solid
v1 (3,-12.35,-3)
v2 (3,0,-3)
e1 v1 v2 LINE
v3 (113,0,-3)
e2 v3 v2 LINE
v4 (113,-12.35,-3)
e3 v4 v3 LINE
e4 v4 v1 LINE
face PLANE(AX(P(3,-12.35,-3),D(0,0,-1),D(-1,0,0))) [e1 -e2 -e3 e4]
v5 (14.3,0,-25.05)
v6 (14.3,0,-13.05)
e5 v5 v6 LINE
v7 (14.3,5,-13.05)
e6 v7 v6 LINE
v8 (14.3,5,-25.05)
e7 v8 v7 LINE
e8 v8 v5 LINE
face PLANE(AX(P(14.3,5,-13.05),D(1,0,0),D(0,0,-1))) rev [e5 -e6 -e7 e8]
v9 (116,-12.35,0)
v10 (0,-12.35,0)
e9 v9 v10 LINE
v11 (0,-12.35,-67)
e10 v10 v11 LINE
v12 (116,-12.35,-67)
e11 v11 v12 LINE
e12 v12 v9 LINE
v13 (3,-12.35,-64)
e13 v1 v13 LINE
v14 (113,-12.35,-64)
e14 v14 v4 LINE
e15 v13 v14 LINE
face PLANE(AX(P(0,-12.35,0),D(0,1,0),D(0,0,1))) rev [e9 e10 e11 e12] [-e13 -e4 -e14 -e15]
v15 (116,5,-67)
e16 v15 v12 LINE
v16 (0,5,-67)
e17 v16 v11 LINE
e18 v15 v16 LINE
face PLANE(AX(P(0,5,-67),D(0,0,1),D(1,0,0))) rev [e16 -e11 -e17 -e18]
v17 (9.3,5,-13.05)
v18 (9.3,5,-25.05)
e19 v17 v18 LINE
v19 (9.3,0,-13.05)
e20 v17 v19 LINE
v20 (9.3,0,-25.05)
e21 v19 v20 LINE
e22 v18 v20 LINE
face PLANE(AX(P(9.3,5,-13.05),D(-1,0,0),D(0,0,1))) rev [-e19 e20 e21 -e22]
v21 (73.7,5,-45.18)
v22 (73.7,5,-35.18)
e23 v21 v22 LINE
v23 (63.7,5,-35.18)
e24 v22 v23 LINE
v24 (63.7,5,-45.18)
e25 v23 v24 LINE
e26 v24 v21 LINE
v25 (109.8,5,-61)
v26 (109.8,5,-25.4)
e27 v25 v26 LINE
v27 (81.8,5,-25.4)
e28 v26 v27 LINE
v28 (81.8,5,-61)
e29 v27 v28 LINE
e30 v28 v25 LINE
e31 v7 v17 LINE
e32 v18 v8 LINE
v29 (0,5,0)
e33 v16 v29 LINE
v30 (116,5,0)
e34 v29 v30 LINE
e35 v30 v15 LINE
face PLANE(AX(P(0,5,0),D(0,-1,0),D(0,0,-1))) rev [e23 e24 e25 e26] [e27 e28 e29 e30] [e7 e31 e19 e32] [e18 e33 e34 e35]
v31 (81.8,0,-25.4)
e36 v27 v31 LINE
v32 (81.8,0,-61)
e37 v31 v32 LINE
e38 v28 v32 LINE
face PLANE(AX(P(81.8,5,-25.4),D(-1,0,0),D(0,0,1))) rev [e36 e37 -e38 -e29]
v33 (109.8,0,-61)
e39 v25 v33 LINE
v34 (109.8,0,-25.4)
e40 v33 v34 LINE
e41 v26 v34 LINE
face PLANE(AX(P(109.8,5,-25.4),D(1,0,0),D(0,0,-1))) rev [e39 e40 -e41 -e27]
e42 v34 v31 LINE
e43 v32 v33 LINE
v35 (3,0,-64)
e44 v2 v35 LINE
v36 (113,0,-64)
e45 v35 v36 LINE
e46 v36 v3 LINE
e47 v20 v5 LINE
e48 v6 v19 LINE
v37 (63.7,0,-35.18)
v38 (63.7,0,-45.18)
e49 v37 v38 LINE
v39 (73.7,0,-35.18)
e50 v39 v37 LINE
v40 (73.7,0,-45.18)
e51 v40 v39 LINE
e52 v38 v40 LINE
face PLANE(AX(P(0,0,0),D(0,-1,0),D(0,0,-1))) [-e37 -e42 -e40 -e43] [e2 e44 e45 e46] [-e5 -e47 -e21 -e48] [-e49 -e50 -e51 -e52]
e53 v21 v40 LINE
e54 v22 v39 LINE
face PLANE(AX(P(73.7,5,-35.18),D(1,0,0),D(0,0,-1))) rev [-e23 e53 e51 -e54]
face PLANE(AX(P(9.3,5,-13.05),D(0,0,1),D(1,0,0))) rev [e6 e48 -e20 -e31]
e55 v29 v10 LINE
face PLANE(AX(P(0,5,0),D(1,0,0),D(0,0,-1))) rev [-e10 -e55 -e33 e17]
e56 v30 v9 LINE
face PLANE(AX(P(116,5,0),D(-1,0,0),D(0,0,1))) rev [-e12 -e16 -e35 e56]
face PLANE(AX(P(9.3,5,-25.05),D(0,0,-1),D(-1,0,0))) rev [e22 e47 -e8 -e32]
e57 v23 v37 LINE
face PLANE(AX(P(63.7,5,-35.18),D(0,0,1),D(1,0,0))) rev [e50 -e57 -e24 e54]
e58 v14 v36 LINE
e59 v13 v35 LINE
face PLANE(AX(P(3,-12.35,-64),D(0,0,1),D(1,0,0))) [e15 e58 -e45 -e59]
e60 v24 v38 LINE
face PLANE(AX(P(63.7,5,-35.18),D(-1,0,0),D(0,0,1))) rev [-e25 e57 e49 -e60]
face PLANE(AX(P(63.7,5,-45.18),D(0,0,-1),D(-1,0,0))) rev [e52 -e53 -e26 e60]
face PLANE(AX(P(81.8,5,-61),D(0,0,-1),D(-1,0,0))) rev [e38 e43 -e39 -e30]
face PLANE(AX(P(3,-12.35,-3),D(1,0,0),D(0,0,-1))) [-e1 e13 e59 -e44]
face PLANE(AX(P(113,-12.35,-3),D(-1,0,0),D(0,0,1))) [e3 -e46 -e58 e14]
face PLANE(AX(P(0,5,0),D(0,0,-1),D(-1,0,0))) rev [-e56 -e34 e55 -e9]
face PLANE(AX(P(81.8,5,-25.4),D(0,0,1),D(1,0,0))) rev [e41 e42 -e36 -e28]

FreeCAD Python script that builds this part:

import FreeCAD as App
import Part
import Sketcher
from FreeCAD import Vector
Q = App.Units.Quantity

doc = App.newDocument("Part")
params = doc.addObject("Spreadsheet::Sheet", "Params")
for row, (alias, value) in enumerate([
    ("sketch1_width", "116 mm"),
    ("sketch1_height", "67 mm"),
    ("pad1_length", "5 mm"),
    ("sketch2_width", "116 mm"),
    ("sketch2_width2", "110 mm"),
    ("sketch2_height", "67 mm"),
    ("sketch2_height2", "61 mm"),
    ("pad2_length", "12.35 mm"),
    ("sketch3_width", "28 mm"),
    ("sketch3_height", "35.6 mm"),
    ("sketch4_width", "10 mm"),
    ("sketch5_width", "5 mm"),
    ("sketch5_height", "12 mm"),
], start=1):
    params.set(f"A{row}", alias)
    params.set(f"B{row}", "=" + value)
    params.setAlias(f"B{row}", alias)

body = doc.addObject("PartDesign::Body", "Body")

sketch1 = body.newObject("Sketcher::SketchObject", "Sketch")
sketch1.AttachmentSupport = (doc.getObject("XZ_Plane"), [""])
sketch1.MapMode = "FlatFace"
sketch1.addGeometry(Part.LineSegment(Vector(0, -67, 0), Vector(0, 0, 0)), False)
sketch1.addGeometry(Part.LineSegment(Vector(0, 0, 0), Vector(116, 0, 0)), False)
sketch1.addGeometry(Part.LineSegment(Vector(116, 0, 0), Vector(116, -67, 0)), False)
sketch1.addGeometry(Part.LineSegment(Vector(116, -67, 0), Vector(0, -67, 0)), False)
sketch1.addConstraint(Sketcher.Constraint("Coincident", 0, 2, 1, 1))
sketch1.addConstraint(Sketcher.Constraint("Coincident", 1, 2, 2, 1))
sketch1.addConstraint(Sketcher.Constraint("Coincident", 2, 2, 3, 1))
sketch1.addConstraint(Sketcher.Constraint("Coincident", 3, 2, 0, 1))
sketch1.addConstraint(Sketcher.Constraint("Vertical", 0))
sketch1.addConstraint(Sketcher.Constraint("Horizontal", 1))
sketch1.addConstraint(Sketcher.Constraint("Vertical", 2))
sketch1.addConstraint(Sketcher.Constraint("Horizontal", 3))
sketch1.addConstraint(Sketcher.Constraint("Coincident", 0, 2, -1, 1))
sketch1.addConstraint(Sketcher.Constraint("DistanceX", 1, 1, 1, 2, Q("116 mm")))
sketch1.addConstraint(Sketcher.Constraint("DistanceY", 0, 1, 0, 2, Q("67 mm")))
sketch1.setExpression("Constraints[9]", "Params.sketch1_width")
sketch1.setExpression("Constraints[10]", "Params.sketch1_height")
pad1 = body.newObject("PartDesign::Pad", "Pad")
pad1.Profile = sketch1
pad1.setExpression("Length", "Params.pad1_length")
pad1.Reversed = True

sketch2 = body.newObject("Sketcher::SketchObject", "Sketch001")
sketch2.AttachmentSupport = (doc.getObject("XZ_Plane"), [""])
sketch2.MapMode = "FlatFace"
sketch2.addGeometry(Part.LineSegment(Vector(0, 0, 0), Vector(0, -67, 0)), False)
sketch2.addGeometry(Part.LineSegment(Vector(0, -67, 0), Vector(116, -67, 0)), False)
sketch2.addGeometry(Part.LineSegment(Vector(116, -67, 0), Vector(116, 0, 0)), False)
sketch2.addGeometry(Part.LineSegment(Vector(116, 0, 0), Vector(0, 0, 0)), False)
sketch2.addGeometry(Part.LineSegment(Vector(113, -64, 0), Vector(3, -64, 0)), False)
sketch2.addGeometry(Part.LineSegment(Vector(3, -64, 0), Vector(3, -3, 0)), False)
sketch2.addGeometry(Part.LineSegment(Vector(3, -3, 0), Vector(113, -3, 0)), False)
sketch2.addGeometry(Part.LineSegment(Vector(113, -3, 0), Vector(113, -64, 0)), False)
sketch2.addConstraint(Sketcher.Constraint("Coincident", 0, 2, 1, 1))
sketch2.addConstraint(Sketcher.Constraint("Coincident", 1, 2, 2, 1))
sketch2.addConstraint(Sketcher.Constraint("Coincident", 2, 2, 3, 1))
sketch2.addConstraint(Sketcher.Constraint("Coincident", 3, 2, 0, 1))
sketch2.addConstraint(Sketcher.Constraint("Coincident", 4, 2, 5, 1))
sketch2.addConstraint(Sketcher.Constraint("Coincident", 5, 2, 6, 1))
sketch2.addConstraint(Sketcher.Constraint("Coincident", 6, 2, 7, 1))
sketch2.addConstraint(Sketcher.Constraint("Coincident", 7, 2, 4, 1))
sketch2.addConstraint(Sketcher.Constraint("Vertical", 0))
sketch2.addConstraint(Sketcher.Constraint("Horizontal", 1))
sketch2.addConstraint(Sketcher.Constraint("Vertical", 2))
sketch2.addConstraint(Sketcher.Constraint("Horizontal", 3))
sketch2.addConstraint(Sketcher.Constraint("Horizontal", 4))
sketch2.addConstraint(Sketcher.Constraint("Vertical", 5))
sketch2.addConstraint(Sketcher.Constraint("Horizontal", 6))
sketch2.addConstraint(Sketcher.Constraint("Vertical", 7))
sketch2.addConstraint(Sketcher.Constraint("Coincident", 3, 2, -1, 1))
sketch2.addConstraint(Sketcher.Constraint("DistanceX", 1, 1, 1, 2, Q("116 mm")))
sketch2.addConstraint(Sketcher.Constraint("DistanceX", 4, 2, 4, 1, Q("110 mm")))
sketch2.addConstraint(Sketcher.Constraint("DistanceY", 0, 2, 0, 1, Q("67 mm")))
sketch2.addConstraint(Sketcher.Constraint("DistanceY", 5, 1, 5, 2, Q("61 mm")))
sketch2.addConstraint(Sketcher.Constraint("DistanceX", -1, 1, 4, 2, Q("3 mm")))
sketch2.addConstraint(Sketcher.Constraint("DistanceY", 4, 2, -1, 1, Q("64 mm")))
sketch2.setExpression("Constraints[17]", "Params.sketch2_width")
sketch2.setExpression("Constraints[18]", "Params.sketch2_width2")
sketch2.setExpression("Constraints[19]", "Params.sketch2_height")
sketch2.setExpression("Constraints[20]", "Params.sketch2_height2")
pad2 = body.newObject("PartDesign::Pad", "Pad001")
pad2.Profile = sketch2
pad2.setExpression("Length", "Params.pad2_length")

sketch3 = body.newObject("Sketcher::SketchObject", "Sketch002")
sketch3.AttachmentSupport = (doc.getObject("XZ_Plane"), [""])
sketch3.MapMode = "FlatFace"
sketch3.addGeometry(Part.LineSegment(Vector(82, -25, 0), Vector(82, -61, 0)), False)
sketch3.addGeometry(Part.LineSegment(Vector(82, -61, 0), Vector(110, -61, 0)), False)
sketch3.addGeometry(Part.LineSegment(Vector(110, -61, 0), Vector(110, -25, 0)), False)
sketch3.addGeometry(Part.LineSegment(Vector(110, -25, 0), Vector(82, -25, 0)), False)
sketch3.addConstraint(Sketcher.Constraint("Coincident", 0, 2, 1, 1))
sketch3.addConstraint(Sketcher.Constraint("Coincident", 1, 2, 2, 1))
sketch3.addConstraint(Sketcher.Constraint("Coincident", 2, 2, 3, 1))
sketch3.addConstraint(Sketcher.Constraint("Coincident", 3, 2, 0, 1))
sketch3.addConstraint(Sketcher.Constraint("Vertical", 0))
sketch3.addConstraint(Sketcher.Constraint("Horizontal", 1))
sketch3.addConstraint(Sketcher.Constraint("Vertical", 2))
sketch3.addConstraint(Sketcher.Constraint("Horizontal", 3))
sketch3.addConstraint(Sketcher.Constraint("DistanceX", 1, 1, 1, 2, Q("28 mm")))
sketch3.addConstraint(Sketcher.Constraint("DistanceY", 0, 2, 0, 1, Q("35.6 mm")))
sketch3.addConstraint(Sketcher.Constraint("DistanceY", 0, 2, -1, 1, Q("61 mm")))
sketch3.addConstraint(Sketcher.Constraint("DistanceX", -1, 1, 0, 2, Q("81.8 mm")))
sketch3.setExpression("Constraints[8]", "Params.sketch3_width")
sketch3.setExpression("Constraints[9]", "Params.sketch3_height")
pocket1 = body.newObject("PartDesign::Pocket", "Pocket")
pocket1.Profile = sketch3
pocket1.Type = "ThroughAll"

sketch4 = body.newObject("Sketcher::SketchObject", "Sketch003")
sketch4.AttachmentSupport = (doc.getObject("XZ_Plane"), [""])
sketch4.MapMode = "FlatFace"
sketch4.addGeometry(Part.LineSegment(Vector(64, -35, 0), Vector(64, -45, 0)), False)
sketch4.addGeometry(Part.LineSegment(Vector(64, -45, 0), Vector(74, -45, 0)), False)
sketch4.addGeometry(Part.LineSegment(Vector(74, -45, 0), Vector(74, -35, 0)), False)
sketch4.addGeometry(Part.LineSegment(Vector(74, -35, 0), Vector(64, -35, 0)), False)
sketch4.addConstraint(Sketcher.Constraint("Coincident", 0, 2, 1, 1))
sketch4.addConstraint(Sketcher.Constraint("Coincident", 1, 2, 2, 1))
sketch4.addConstraint(Sketcher.Constraint("Coincident", 2, 2, 3, 1))
sketch4.addConstraint(Sketcher.Constraint("Coincident", 3, 2, 0, 1))
sketch4.addConstraint(Sketcher.Constraint("Vertical", 0))
sketch4.addConstraint(Sketcher.Constraint("Horizontal", 1))
sketch4.addConstraint(Sketcher.Constraint("Vertical", 2))
sketch4.addConstraint(Sketcher.Constraint("Horizontal", 3))
sketch4.addConstraint(Sketcher.Constraint("Equal", 3, 0))
sketch4.addConstraint(Sketcher.Constraint("DistanceX", 1, 1, 1, 2, Q("10 mm")))
sketch4.addConstraint(Sketcher.Constraint("DistanceX", -1, 1, 0, 2, Q("63.7 mm")))
sketch4.addConstraint(Sketcher.Constraint("DistanceY", 0, 2, -1, 1, Q("45.18 mm")))
sketch4.setExpression("Constraints[9]", "Params.sketch4_width")
pocket2 = body.newObject("PartDesign::Pocket", "Pocket001")
pocket2.Profile = sketch4
pocket2.Type = "ThroughAll"

sketch5 = body.newObject("Sketcher::SketchObject", "Sketch004")
sketch5.AttachmentSupport = (doc.getObject("XZ_Plane"), [""])
sketch5.MapMode = "FlatFace"
sketch5.addGeometry(Part.LineSegment(Vector(9, -13, 0), Vector(9, -25, 0)), False)
sketch5.addGeometry(Part.LineSegment(Vector(9, -25, 0), Vector(14, -25, 0)), False)
sketch5.addGeometry(Part.LineSegment(Vector(14, -25, 0), Vector(14, -13, 0)), False)
sketch5.addGeometry(Part.LineSegment(Vector(14, -13, 0), Vector(9, -13, 0)), False)
sketch5.addConstraint(Sketcher.Constraint("Coincident", 0, 2, 1, 1))
sketch5.addConstraint(Sketcher.Constraint("Coincident", 1, 2, 2, 1))
sketch5.addConstraint(Sketcher.Constraint("Coincident", 2, 2, 3, 1))
sketch5.addConstraint(Sketcher.Constraint("Coincident", 3, 2, 0, 1))
sketch5.addConstraint(Sketcher.Constraint("Vertical", 0))
sketch5.addConstraint(Sketcher.Constraint("Horizontal", 1))
sketch5.addConstraint(Sketcher.Constraint("Vertical", 2))
sketch5.addConstraint(Sketcher.Constraint("Horizontal", 3))
sketch5.addConstraint(Sketcher.Constraint("DistanceX", 1, 1, 1, 2, Q("5 mm")))
sketch5.addConstraint(Sketcher.Constraint("DistanceY", 0, 2, 0, 1, Q("12 mm")))
sketch5.addConstraint(Sketcher.Constraint("DistanceX", -1, 1, 0, 2, Q("9.3 mm")))
sketch5.addConstraint(Sketcher.Constraint("DistanceY", 0, 2, -1, 1, Q("25.05 mm")))
sketch5.setExpression("Constraints[8]", "Params.sketch5_width")
sketch5.setExpression("Constraints[9]", "Params.sketch5_height")
pocket3 = body.newObject("PartDesign::Pocket", "Pocket002")
pocket3.Profile = sketch5
pocket3.Type = "ThroughAll"

doc.recompute()
